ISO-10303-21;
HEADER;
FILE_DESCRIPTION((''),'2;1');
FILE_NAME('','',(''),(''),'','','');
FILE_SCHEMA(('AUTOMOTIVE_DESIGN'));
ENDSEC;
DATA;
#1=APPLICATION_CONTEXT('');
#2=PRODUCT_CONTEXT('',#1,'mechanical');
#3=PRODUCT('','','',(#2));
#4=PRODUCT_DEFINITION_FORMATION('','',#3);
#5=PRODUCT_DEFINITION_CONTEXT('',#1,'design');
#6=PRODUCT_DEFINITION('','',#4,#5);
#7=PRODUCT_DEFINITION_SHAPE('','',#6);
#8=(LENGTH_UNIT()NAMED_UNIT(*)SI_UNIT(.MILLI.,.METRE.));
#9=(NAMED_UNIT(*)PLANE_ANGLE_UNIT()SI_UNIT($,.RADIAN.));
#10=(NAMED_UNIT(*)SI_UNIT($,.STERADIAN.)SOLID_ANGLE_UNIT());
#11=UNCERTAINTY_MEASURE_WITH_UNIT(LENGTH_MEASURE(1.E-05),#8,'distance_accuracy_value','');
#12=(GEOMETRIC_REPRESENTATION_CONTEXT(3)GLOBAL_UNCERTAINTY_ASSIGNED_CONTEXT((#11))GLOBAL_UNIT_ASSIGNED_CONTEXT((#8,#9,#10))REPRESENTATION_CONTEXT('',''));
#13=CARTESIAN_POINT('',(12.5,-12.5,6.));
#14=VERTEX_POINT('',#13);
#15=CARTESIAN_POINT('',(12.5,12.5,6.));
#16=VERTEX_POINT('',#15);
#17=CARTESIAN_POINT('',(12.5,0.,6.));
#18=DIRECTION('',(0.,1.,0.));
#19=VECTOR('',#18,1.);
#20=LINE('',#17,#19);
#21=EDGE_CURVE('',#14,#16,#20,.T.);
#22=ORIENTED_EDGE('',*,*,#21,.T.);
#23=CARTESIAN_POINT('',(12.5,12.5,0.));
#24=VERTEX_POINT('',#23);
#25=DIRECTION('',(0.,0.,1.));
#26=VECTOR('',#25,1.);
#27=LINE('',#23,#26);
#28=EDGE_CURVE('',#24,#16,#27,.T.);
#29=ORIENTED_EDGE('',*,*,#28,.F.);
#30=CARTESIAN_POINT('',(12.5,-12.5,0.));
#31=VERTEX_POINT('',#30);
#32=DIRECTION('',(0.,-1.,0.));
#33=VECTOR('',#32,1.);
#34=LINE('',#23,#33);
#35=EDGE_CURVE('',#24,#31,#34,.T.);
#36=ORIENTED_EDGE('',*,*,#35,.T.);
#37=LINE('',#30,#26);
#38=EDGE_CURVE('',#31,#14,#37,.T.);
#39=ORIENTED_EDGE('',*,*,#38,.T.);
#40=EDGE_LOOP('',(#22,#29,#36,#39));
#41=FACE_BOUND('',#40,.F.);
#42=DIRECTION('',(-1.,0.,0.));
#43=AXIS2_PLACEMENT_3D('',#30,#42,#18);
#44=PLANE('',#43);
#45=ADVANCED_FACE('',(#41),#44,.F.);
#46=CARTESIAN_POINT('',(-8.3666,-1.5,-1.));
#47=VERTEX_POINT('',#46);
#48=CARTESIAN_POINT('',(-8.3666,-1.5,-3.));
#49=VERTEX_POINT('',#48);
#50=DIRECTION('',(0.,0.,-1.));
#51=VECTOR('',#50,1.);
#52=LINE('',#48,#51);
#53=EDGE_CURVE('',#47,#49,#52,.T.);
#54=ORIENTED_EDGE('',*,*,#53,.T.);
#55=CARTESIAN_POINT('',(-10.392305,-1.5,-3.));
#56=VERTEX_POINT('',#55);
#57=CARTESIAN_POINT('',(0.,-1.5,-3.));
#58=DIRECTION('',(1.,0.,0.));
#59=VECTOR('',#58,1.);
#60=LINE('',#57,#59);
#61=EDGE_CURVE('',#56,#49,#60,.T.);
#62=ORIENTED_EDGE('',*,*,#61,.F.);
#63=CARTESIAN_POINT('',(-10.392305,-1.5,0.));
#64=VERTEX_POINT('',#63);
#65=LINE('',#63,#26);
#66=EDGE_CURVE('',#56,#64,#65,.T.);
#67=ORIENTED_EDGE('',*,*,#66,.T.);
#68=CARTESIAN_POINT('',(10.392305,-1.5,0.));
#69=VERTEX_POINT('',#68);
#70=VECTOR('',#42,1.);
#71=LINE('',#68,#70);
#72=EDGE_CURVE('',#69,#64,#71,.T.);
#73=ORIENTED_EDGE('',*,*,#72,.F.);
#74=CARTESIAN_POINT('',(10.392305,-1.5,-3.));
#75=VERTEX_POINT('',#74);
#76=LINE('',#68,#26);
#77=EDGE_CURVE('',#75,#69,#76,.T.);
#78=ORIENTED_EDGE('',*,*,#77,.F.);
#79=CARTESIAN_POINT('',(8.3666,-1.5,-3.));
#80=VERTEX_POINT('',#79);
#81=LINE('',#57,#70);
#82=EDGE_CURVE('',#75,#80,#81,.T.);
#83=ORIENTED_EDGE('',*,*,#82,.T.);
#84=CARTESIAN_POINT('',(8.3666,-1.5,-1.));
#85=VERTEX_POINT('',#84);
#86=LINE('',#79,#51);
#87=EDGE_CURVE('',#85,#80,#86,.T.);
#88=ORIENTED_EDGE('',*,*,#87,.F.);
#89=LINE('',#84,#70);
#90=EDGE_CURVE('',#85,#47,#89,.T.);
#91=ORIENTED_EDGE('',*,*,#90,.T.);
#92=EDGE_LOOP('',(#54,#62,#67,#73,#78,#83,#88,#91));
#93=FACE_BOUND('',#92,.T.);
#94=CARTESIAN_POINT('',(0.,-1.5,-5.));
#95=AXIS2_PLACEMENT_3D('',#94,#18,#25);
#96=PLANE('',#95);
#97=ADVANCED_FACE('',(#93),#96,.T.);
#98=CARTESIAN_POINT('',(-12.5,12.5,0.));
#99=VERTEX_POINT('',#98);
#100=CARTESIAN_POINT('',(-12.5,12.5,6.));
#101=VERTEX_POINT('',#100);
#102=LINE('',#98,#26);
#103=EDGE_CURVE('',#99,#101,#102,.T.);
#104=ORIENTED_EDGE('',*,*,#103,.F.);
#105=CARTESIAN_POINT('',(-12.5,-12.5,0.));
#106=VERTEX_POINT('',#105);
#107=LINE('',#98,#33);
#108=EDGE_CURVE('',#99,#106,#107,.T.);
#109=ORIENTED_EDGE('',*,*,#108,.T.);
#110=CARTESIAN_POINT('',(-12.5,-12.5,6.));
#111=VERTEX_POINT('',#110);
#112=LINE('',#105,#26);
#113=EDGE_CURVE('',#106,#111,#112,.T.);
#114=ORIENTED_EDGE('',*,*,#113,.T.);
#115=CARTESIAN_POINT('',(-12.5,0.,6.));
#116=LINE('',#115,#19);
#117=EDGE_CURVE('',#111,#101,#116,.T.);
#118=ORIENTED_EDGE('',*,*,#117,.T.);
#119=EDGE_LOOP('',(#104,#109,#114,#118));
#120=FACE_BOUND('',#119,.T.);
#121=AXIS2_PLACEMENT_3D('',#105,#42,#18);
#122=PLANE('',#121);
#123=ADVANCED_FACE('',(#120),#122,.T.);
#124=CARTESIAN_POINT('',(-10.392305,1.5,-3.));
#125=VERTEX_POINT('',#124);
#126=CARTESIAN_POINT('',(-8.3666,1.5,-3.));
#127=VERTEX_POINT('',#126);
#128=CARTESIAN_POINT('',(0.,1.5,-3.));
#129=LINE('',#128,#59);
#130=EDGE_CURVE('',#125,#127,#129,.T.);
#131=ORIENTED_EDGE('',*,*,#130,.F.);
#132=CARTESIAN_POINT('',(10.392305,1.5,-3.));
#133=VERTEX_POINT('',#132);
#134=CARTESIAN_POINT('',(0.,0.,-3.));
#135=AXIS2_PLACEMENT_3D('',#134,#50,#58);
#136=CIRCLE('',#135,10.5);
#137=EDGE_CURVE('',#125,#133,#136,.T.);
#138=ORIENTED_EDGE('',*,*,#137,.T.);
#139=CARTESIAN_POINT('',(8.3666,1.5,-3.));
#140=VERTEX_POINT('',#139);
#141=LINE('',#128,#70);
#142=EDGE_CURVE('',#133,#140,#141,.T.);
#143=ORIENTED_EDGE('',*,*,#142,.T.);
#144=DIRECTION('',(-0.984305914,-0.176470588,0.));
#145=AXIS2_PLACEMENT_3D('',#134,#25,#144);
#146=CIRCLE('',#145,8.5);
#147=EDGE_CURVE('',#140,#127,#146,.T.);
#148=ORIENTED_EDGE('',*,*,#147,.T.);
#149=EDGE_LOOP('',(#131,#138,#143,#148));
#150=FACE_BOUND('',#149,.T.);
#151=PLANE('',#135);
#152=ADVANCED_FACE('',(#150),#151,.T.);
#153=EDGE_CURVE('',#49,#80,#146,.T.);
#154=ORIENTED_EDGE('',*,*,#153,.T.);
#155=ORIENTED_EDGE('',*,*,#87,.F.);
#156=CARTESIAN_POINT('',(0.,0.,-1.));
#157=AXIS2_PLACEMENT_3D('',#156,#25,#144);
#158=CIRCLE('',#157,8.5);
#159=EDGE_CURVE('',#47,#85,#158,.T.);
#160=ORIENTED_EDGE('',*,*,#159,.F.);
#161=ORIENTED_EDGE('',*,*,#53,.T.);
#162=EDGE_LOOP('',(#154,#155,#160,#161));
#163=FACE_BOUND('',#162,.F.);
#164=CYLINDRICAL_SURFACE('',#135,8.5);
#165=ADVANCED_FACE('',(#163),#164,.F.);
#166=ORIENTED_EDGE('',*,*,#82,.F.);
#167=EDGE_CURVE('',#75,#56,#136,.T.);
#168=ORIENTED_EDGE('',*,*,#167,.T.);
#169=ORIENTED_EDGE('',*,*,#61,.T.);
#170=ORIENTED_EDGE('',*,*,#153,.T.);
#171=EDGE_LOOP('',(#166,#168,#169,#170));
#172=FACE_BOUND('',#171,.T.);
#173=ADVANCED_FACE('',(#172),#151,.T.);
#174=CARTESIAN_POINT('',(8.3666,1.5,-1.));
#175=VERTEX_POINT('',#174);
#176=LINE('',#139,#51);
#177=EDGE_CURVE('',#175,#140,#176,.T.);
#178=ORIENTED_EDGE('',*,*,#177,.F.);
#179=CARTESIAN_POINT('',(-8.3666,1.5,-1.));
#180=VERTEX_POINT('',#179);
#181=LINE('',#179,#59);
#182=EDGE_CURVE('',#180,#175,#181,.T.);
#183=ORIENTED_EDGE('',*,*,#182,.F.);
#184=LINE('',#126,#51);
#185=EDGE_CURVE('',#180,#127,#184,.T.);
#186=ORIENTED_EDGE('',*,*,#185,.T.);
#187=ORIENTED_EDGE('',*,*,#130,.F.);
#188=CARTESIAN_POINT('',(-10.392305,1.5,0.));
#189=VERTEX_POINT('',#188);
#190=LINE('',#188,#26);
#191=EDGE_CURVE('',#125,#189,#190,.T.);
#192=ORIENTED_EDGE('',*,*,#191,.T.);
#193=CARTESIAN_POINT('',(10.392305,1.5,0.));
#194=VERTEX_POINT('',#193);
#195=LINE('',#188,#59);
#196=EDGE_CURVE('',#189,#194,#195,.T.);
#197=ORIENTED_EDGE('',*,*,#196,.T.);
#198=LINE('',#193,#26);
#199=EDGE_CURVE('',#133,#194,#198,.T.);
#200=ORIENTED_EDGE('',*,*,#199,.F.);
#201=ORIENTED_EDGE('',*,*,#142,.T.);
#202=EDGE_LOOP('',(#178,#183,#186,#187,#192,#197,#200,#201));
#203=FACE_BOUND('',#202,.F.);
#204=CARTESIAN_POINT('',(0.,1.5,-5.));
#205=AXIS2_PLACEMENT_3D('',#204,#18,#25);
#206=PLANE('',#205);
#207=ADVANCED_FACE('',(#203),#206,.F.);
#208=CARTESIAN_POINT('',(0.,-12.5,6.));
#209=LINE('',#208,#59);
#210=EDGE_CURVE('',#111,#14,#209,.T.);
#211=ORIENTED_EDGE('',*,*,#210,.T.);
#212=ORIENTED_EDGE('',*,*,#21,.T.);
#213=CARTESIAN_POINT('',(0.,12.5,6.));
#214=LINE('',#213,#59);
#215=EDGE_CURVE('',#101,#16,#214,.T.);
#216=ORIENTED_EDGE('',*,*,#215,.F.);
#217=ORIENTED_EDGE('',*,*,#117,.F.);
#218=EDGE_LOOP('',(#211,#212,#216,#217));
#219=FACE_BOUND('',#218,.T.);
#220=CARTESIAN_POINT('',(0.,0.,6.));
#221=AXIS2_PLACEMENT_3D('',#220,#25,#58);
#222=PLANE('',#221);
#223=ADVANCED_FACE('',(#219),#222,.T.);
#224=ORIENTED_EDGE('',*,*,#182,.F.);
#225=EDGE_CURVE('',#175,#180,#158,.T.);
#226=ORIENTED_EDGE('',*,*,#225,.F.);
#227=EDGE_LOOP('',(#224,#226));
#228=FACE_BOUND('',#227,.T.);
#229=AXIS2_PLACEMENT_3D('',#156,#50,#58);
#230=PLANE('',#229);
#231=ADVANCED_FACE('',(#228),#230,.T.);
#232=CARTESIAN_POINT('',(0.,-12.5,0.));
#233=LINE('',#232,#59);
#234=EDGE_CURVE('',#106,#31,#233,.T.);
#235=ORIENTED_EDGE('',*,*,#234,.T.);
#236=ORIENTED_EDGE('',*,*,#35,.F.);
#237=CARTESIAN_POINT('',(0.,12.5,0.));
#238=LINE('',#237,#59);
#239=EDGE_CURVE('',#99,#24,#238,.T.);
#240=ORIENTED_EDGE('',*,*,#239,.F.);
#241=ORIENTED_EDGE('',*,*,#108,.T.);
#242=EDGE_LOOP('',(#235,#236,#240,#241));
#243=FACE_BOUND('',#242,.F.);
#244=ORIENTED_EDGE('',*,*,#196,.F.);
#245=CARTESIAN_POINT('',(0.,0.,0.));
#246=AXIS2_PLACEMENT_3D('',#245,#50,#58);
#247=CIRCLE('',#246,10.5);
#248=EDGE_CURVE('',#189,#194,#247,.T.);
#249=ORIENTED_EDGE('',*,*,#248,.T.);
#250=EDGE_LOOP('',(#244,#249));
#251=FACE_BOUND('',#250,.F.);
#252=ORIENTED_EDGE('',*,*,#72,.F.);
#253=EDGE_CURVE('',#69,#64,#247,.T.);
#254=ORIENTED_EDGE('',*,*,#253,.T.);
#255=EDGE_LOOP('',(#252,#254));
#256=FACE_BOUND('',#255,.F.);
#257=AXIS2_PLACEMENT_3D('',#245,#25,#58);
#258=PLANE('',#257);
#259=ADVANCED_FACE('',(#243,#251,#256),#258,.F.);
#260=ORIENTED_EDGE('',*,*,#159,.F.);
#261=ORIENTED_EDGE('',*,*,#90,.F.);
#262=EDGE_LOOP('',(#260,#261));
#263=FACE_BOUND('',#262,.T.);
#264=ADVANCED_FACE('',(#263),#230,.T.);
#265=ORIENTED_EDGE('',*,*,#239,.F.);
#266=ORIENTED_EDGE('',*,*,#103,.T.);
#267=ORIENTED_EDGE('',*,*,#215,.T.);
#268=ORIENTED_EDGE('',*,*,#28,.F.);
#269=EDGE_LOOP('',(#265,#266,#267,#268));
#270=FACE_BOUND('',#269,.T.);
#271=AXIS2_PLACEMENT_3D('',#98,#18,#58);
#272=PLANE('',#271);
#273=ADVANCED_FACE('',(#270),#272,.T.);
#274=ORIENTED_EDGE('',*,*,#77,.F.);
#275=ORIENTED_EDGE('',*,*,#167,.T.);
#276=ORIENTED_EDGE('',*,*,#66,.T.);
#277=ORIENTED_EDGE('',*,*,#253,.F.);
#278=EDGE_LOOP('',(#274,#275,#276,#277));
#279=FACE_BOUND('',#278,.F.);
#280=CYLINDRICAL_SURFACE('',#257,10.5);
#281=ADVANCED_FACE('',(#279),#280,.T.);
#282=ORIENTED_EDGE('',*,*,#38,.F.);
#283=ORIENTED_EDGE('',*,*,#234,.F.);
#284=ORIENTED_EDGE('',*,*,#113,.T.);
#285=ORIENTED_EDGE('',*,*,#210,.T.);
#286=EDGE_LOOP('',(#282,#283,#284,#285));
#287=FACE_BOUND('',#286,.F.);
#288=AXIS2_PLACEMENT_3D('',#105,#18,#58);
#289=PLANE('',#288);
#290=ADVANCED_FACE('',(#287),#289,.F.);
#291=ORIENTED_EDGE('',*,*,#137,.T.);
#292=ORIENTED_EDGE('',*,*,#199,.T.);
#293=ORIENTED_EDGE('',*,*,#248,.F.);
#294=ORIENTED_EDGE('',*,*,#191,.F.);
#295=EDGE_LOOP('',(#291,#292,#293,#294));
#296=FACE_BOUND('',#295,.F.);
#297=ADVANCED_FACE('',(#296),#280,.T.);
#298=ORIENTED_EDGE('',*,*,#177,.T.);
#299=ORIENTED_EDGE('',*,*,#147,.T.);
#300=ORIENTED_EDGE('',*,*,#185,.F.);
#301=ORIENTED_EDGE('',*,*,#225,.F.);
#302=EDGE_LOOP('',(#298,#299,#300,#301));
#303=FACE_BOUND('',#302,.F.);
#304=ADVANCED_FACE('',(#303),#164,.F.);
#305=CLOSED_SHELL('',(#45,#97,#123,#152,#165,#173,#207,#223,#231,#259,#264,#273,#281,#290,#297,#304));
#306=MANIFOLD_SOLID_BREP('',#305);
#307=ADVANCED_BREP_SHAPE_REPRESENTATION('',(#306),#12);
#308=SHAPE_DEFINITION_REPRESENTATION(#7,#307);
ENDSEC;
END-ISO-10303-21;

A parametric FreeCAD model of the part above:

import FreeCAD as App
import Part
import Sketcher


def add_polygon(sketch, points):
    """Adds a closed chain of lines whose ends are joined by coincident constraints."""
    first, n = sketch.GeometryCount, len(points)
    for a, b in zip(points, points[1:] + points[:1]):
        sketch.addGeometry(Part.LineSegment(App.Vector(*a, 0), App.Vector(*b, 0)), False)
    for i in range(n):
        sketch.addConstraint(Sketcher.Constraint("Coincident", first + i, 2, first + (i + 1) % n, 1))

doc = App.newDocument("Part")
body = doc.addObject("PartDesign::Body", "Body")

# Sketch on XY plane
sketch1 = body.newObject("Sketcher::SketchObject", "Sketch")
sketch1.AttachmentSupport = (doc.getObject("XY_Plane"), [""])
sketch1.MapMode = "FlatFace"
add_polygon(sketch1, [(-12, 12), (-12, -12), (12, -12), (12, 12)])  # lines 0-3
sketch1.addConstraint(Sketcher.Constraint("Vertical", 0))
sketch1.addConstraint(Sketcher.Constraint("Horizontal", 1))
sketch1.addConstraint(Sketcher.Constraint("Vertical", 2))
sketch1.addConstraint(Sketcher.Constraint("Horizontal", 3))
sketch1.addConstraint(Sketcher.Constraint("Symmetric", 0, 2, 2, 2, -1, 1))
sketch1.addConstraint(Sketcher.Constraint("Equal", 3, 0))
sketch1.addConstraint(Sketcher.Constraint("DistanceX", 1, 1, 1, 2, 25.0))
pad1 = body.newObject("PartDesign::Pad", "Pad")
pad1.Profile = sketch1
pad1.Length = 6

# Sketch on XY plane
sketch2 = body.newObject("Sketcher::SketchObject", "Sketch001")
sketch2.AttachmentSupport = (doc.getObject("XY_Plane"), [""])
sketch2.MapMode = "FlatFace"
sketch2.addGeometry(Part.Circle(App.Vector(0, 0, 0), App.Vector(0, 0, 1), 10), False)
sketch2.addConstraint(Sketcher.Constraint("Coincident", 0, 3, -1, 1))
sketch2.addConstraint(Sketcher.Constraint("Diameter", 0, 21.0))
pad2 = body.newObject("PartDesign::Pad", "Pad001")
pad2.Profile = sketch2
pad2.Length = 3
pad2.Reversed = True

# Sketch on XY plane
sketch3 = body.newObject("Sketcher::SketchObject", "Sketch002")
sketch3.AttachmentSupport = (doc.getObject("XY_Plane"), [""])
sketch3.MapMode = "FlatFace"
sketch3.AttachmentOffset = App.Placement(App.Vector(0, 0, -3), App.Rotation())
sketch3.addGeometry(Part.Circle(App.Vector(0, 0, 0), App.Vector(0, 0, 1), 8), False)
sketch3.addConstraint(Sketcher.Constraint("Coincident", 0, 3, -1, 1))
sketch3.addConstraint(Sketcher.Constraint("Diameter", 0, 17.0))
pocket1 = body.newObject("PartDesign::Pocket", "Pocket")
pocket1.Profile = sketch3
pocket1.Length = 2
pocket1.Reversed = True

# Sketch on YZ plane
sketch4 = body.newObject("Sketcher::SketchObject", "Sketch003")
sketch4.AttachmentSupport = (doc.getObject("YZ_Plane"), [""])
sketch4.MapMode = "FlatFace"
add_polygon(sketch4, [(-1.5, 0), (-1.5, -5), (1.5, -5), (1.5, 0)])  # lines 0-3
sketch4.addConstraint(Sketcher.Constraint("Vertical", 0))
sketch4.addConstraint(Sketcher.Constraint("Horizontal", 1))
sketch4.addConstraint(Sketcher.Constraint("Vertical", 2))
sketch4.addConstraint(Sketcher.Constraint("Horizontal", 3))
sketch4.addConstraint(Sketcher.Constraint("Symmetric", 2, 2, 3, 2, -1, 1))
sketch4.addConstraint(Sketcher.Constraint("DistanceX", 1, 1, 1, 2, 3.0))
sketch4.addConstraint(Sketcher.Constraint("DistanceY", 0, 2, 0, 1, 5.0))
pocket2 = body.newObject("PartDesign::Pocket", "Pocket001")
pocket2.Profile = sketch4
pocket2.Type = "ThroughAll"
pocket2.Midplane = True

doc.recompute()
